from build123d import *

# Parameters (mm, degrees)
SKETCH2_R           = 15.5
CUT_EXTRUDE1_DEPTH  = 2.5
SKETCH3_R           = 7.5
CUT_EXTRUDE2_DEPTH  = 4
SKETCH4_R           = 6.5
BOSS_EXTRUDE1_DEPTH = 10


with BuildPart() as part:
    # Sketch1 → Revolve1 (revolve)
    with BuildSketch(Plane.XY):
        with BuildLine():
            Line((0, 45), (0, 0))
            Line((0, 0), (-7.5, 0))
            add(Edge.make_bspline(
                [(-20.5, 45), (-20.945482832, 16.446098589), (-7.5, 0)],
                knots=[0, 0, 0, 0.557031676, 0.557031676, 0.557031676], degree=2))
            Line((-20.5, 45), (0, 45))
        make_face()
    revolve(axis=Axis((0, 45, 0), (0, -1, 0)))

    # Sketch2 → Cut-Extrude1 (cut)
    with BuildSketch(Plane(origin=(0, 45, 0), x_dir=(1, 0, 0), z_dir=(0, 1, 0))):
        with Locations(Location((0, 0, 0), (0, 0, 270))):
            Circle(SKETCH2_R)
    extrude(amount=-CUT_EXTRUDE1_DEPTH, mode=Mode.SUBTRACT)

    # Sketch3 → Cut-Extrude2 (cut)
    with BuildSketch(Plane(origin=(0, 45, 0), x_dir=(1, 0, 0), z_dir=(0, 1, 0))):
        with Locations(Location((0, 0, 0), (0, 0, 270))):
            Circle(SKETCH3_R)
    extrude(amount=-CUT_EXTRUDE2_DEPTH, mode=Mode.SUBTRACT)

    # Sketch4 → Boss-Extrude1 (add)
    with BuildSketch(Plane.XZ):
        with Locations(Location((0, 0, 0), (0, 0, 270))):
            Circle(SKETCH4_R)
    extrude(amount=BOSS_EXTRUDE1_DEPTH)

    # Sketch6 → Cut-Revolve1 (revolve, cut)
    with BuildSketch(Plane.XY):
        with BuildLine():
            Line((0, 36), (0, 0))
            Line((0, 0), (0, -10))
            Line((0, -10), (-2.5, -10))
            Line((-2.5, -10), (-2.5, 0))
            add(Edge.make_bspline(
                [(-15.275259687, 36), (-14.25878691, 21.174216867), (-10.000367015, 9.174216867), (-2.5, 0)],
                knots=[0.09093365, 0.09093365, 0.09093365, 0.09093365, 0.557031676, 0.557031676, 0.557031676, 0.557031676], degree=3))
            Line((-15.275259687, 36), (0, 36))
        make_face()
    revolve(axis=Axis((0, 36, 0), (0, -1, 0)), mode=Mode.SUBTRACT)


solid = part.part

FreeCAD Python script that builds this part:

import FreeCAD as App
import Part
import Sketcher

V = App.Vector

doc = App.newDocument("Part")
body = doc.addObject("PartDesign::Body", "Body")

# Sketch on XY plane
sketch1 = body.newObject("Sketcher::SketchObject", "Sketch")
sketch1.AttachmentSupport = (doc.getObject("XY_Plane"), [""])
sketch1.MapMode = "FlatFace"
sketch1.addGeometry(Part.LineSegment(V(0, 0, 0), V(0, 45, 0)), False)
sketch1.addGeometry(Part.LineSegment(V(0, 45, 0), V(-20.5, 45, 0)), False)
sketch1.addGeometry(Part.BSplineCurve([V(-20.5, 45, 0), V(-20.945483, 16.446099, 0), V(-7.5, 0, 0)], [3, 3], [0, 0.557031676], False, 2, [1, 1, 1], False), False)
sketch1.addGeometry(Part.LineSegment(V(-7.5, 0, 0), V(0, 0, 0)), False)
sketch1.addConstraint(Sketcher.Constraint("Block", 2))
sketch1.addConstraint(Sketcher.Constraint("Coincident", 0, 2, 1, 1))
sketch1.addConstraint(Sketcher.Constraint("Coincident", 1, 2, 2, 1))
sketch1.addConstraint(Sketcher.Constraint("Coincident", 2, 2, 3, 1))
sketch1.addConstraint(Sketcher.Constraint("Coincident", 3, 2, 0, 1))
sketch1.addConstraint(Sketcher.Constraint("Vertical", 0))
sketch1.addConstraint(Sketcher.Constraint("Horizontal", 1))
sketch1.addConstraint(Sketcher.Constraint("Horizontal", 3))
sketch1.addConstraint(Sketcher.Constraint("PointOnObject", 0, 2, -2))
revolution = body.newObject("PartDesign::Revolution", "Revolution")
revolution.Profile = sketch1
revolution.ReferenceAxis = (sketch1, ["V_Axis"])
revolution.Angle = 360

# Sketch on XZ plane
sketch2 = body.newObject("Sketcher::SketchObject", "Sketch001")
sketch2.AttachmentSupport = (doc.getObject("XZ_Plane"), [""])
sketch2.MapMode = "FlatFace"
sketch2.AttachmentOffset = App.Placement(V(0, 0, -45), App.Rotation())
sketch2.addGeometry(Part.Circle(V(0, 0, 0), V(0, 0, 1), 15.5), False)
sketch2.addConstraint(Sketcher.Constraint("Coincident", 0, 3, -1, 1))
sketch2.addConstraint(Sketcher.Constraint("Diameter", 0, 31.0))
pocket1 = body.newObject("PartDesign::Pocket", "Pocket")
pocket1.Profile = sketch2
pocket1.Length = 2.5
pocket1.Reversed = True

# Sketch on XZ plane
sketch3 = body.newObject("Sketcher::SketchObject", "Sketch002")
sketch3.AttachmentSupport = (doc.getObject("XZ_Plane"), [""])
sketch3.MapMode = "FlatFace"
sketch3.AttachmentOffset = App.Placement(V(0, 0, -45), App.Rotation())
sketch3.addGeometry(Part.Circle(V(0, 0, 0), V(0, 0, 1), 7.5), False)
sketch3.addConstraint(Sketcher.Constraint("Coincident", 0, 3, -1, 1))
sketch3.addConstraint(Sketcher.Constraint("Diameter", 0, 15.0))
pocket2 = body.newObject("PartDesign::Pocket", "Pocket001")
pocket2.Profile = sketch3
pocket2.Length = 4
pocket2.Reversed = True

# Sketch on XZ plane
sketch4 = body.newObject("Sketcher::SketchObject", "Sketch003")
sketch4.AttachmentSupport = (doc.getObject("XZ_Plane"), [""])
sketch4.MapMode = "FlatFace"
sketch4.addGeometry(Part.Circle(V(0, 0, 0), V(0, 0, 1), 6.5), False)
sketch4.addConstraint(Sketcher.Constraint("Coincident", 0, 3, -1, 1))
sketch4.addConstraint(Sketcher.Constraint("Diameter", 0, 13.0))
pad1 = body.newObject("PartDesign::Pad", "Pad")
pad1.Profile = sketch4
pad1.Length = 10

# Sketch on XY plane
sketch5 = body.newObject("Sketcher::SketchObject", "Sketch004")
sketch5.AttachmentSupport = (doc.getObject("XY_Plane"), [""])
sketch5.MapMode = "FlatFace"
sketch5.addGeometry(Part.LineSegment(V(0, -10, 0), V(0, 36, 0)), False)
sketch5.addGeometry(Part.LineSegment(V(0, 36, 0), V(-15.27526, 36, 0)), False)
sketch5.addGeometry(Part.BSplineCurve([V(-15.27526, 36, 0), V(-14.258787, 21.174217, 0), V(-10.000367, 9.174217, 0), V(-2.5, 0, 0)], [4, 4], [0.09093365, 0.557031676], False, 3, [1, 1, 1, 1], False), False)
sketch5.addGeometry(Part.LineSegment(V(-2.5, 0, 0), V(-2.5, -10, 0)), False)
sketch5.addGeometry(Part.LineSegment(V(-2.5, -10, 0), V(0, -10, 0)), False)
sketch5.addConstraint(Sketcher.Constraint("Block", 2))
sketch5.addConstraint(Sketcher.Constraint("Coincident", 0, 2, 1, 1))
sketch5.addConstraint(Sketcher.Constraint("Coincident", 1, 2, 2, 1))
sketch5.addConstraint(Sketcher.Constraint("Coincident", 2, 2, 3, 1))
sketch5.addConstraint(Sketcher.Constraint("Coincident", 3, 2, 4, 1))
sketch5.addConstraint(Sketcher.Constraint("Coincident", 4, 2, 0, 1))
sketch5.addConstraint(Sketcher.Constraint("Vertical", 0))
sketch5.addConstraint(Sketcher.Constraint("Horizontal", 1))
sketch5.addConstraint(Sketcher.Constraint("Vertical", 3))
sketch5.addConstraint(Sketcher.Constraint("Horizontal", 4))
sketch5.addConstraint(Sketcher.Constraint("PointOnObject", 0, 2, -2))
sketch5.addConstraint(Sketcher.Constraint("DistanceY", 0, 1, 0, 2, 46.0))
groove = body.newObject("PartDesign::Groove", "Groove")
groove.Profile = sketch5
groove.ReferenceAxis = (sketch5, ["V_Axis"])
groove.Angle = 360

doc.recompute()
